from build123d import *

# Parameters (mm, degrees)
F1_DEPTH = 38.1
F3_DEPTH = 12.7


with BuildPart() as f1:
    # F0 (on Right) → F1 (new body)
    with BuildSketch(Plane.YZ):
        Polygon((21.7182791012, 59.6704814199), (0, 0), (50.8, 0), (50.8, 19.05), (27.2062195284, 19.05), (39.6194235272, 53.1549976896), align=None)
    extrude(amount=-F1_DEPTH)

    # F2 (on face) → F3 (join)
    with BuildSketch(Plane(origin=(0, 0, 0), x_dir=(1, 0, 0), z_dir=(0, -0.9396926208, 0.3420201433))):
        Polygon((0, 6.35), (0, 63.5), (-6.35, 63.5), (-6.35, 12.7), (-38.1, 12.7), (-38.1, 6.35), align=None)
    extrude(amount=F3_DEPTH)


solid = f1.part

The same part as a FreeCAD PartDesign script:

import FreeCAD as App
import Part
import Sketcher
from FreeCAD import Vector
Q = App.Units.Quantity


def add_polygon(sketch, points):
    """Adds a closed chain of lines whose ends are joined by coincident constraints."""
    first, n = sketch.GeometryCount, len(points)
    for a, b in zip(points, points[1:] + points[:1]):
        sketch.addGeometry(Part.LineSegment(App.Vector(*a, 0), App.Vector(*b, 0)), False)
    for i in range(n):
        sketch.addConstraint(Sketcher.Constraint("Coincident", first + i, 2, first + (i + 1) % n, 1))

doc = App.newDocument("Part")
params = doc.addObject("Spreadsheet::Sheet", "Params")
for row, (alias, value) in enumerate([
    ("sketch1_width", "2 in"),
    ("sketch1_length", "2.5 in"),
    ("sketch1_height", "0.75 in"),
    ("sketch1_length2", "0.75 in"),
    ("pad1_length", "1.5 in"),
    ("sketch2_height", "2 in"),
    ("sketch2_width", "1.5 in"),
    ("sketch2_width2", "0.25 in"),
    ("pad2_length", "0.5 in"),
], start=1):
    params.set(f"A{row}", alias)
    params.set(f"B{row}", "=" + value)
    params.setAlias(f"B{row}", alias)

body = doc.addObject("PartDesign::Body", "Body")

# Sketch on YZ plane
sketch1 = doc.addObject("Sketcher::SketchObject", "Sketch")
body.addObject(sketch1)
sketch1.AttachmentSupport = (doc.YZ_Plane, [""])
sketch1.MapMode = "FlatFace"
add_polygon(sketch1, [(22, 60), (0, 0), (51, 0), (51, 19), (27, 19), (40, 53)])  # lines 0-5
sketch1.addConstraint([
    Sketcher.Constraint("Horizontal", 1),
    Sketcher.Constraint("Vertical", 2),
    Sketcher.Constraint("Horizontal", 3),
    Sketcher.Constraint("Coincident", 0, 2, -1, 1),
    Sketcher.Constraint("Parallel", 0, 4),
    Sketcher.Constraint("Perpendicular", 4, 5),
    Sketcher.Constraint("DistanceX", 1, 1, 1, 2, Q("2 in")),
    Sketcher.Constraint("Angle", 0, Q("-110 deg")),
    Sketcher.Constraint("Distance", 0, Q("2.5 in")),
    Sketcher.Constraint("DistanceY", 2, 1, 2, 2, Q("0.75 in")),
    Sketcher.Constraint("Distance", 5, Q("0.75 in")),
])
sketch1.setExpression("Constraints[12]", "Params.sketch1_width")
sketch1.setExpression("Constraints[14]", "Params.sketch1_length")
sketch1.setExpression("Constraints[15]", "Params.sketch1_height")
sketch1.setExpression("Constraints[16]", "Params.sketch1_length2")
pad1 = doc.addObject("PartDesign::Pad", "Pad")
body.addObject(pad1)
pad1.Profile = sketch1
pad1.setExpression("Length", "Params.pad1_length")
pad1.Reversed = True

# Sketch on an angled plane
sketch2 = doc.addObject("Sketcher::SketchObject", "Sketch001")
body.addObject(sketch2)
sketch2.Placement = App.Placement(Vector(0, 0, 0), App.Rotation(Vector(1, 0, 0), Vector(0, 0.342020143, 0.939692621), Vector(0, -0.939692621, 0.342020143), "ZXY"))
add_polygon(sketch2, [(0, 6), (0, 64), (-6, 64), (-6, 13), (-38, 13), (-38, 6)])  # lines 0-5
sketch2.addConstraint([
    Sketcher.Constraint("Vertical", 0),
    Sketcher.Constraint("Horizontal", 1),
    Sketcher.Constraint("Vertical", 2),
    Sketcher.Constraint("Horizontal", 3),
    Sketcher.Constraint("Vertical", 4),
    Sketcher.Constraint("Horizontal", 5),
    Sketcher.Constraint("PointOnObject", 0, 2, -2),
    Sketcher.Constraint("Equal", 1, 4),
    Sketcher.Constraint("DistanceY", 2, 2, 2, 1, Q("2 in")),
    Sketcher.Constraint("DistanceX", 5, 1, 5, 2, Q("1.5 in")),
    Sketcher.Constraint("DistanceX", 1, 2, 1, 1, Q("0.25 in")),
    Sketcher.Constraint("DistanceY", -1, 1, 0, 2, Q("2.5 in")),
])
sketch2.setExpression("Constraints[14]", "Params.sketch2_height")
sketch2.setExpression("Constraints[15]", "Params.sketch2_width")
sketch2.setExpression("Constraints[16]", "Params.sketch2_width2")
pad2 = doc.addObject("PartDesign::Pad", "Pad001")
body.addObject(pad2)
pad2.Profile = sketch2
pad2.setExpression("Length", "Params.pad2_length")

doc.recompute()
